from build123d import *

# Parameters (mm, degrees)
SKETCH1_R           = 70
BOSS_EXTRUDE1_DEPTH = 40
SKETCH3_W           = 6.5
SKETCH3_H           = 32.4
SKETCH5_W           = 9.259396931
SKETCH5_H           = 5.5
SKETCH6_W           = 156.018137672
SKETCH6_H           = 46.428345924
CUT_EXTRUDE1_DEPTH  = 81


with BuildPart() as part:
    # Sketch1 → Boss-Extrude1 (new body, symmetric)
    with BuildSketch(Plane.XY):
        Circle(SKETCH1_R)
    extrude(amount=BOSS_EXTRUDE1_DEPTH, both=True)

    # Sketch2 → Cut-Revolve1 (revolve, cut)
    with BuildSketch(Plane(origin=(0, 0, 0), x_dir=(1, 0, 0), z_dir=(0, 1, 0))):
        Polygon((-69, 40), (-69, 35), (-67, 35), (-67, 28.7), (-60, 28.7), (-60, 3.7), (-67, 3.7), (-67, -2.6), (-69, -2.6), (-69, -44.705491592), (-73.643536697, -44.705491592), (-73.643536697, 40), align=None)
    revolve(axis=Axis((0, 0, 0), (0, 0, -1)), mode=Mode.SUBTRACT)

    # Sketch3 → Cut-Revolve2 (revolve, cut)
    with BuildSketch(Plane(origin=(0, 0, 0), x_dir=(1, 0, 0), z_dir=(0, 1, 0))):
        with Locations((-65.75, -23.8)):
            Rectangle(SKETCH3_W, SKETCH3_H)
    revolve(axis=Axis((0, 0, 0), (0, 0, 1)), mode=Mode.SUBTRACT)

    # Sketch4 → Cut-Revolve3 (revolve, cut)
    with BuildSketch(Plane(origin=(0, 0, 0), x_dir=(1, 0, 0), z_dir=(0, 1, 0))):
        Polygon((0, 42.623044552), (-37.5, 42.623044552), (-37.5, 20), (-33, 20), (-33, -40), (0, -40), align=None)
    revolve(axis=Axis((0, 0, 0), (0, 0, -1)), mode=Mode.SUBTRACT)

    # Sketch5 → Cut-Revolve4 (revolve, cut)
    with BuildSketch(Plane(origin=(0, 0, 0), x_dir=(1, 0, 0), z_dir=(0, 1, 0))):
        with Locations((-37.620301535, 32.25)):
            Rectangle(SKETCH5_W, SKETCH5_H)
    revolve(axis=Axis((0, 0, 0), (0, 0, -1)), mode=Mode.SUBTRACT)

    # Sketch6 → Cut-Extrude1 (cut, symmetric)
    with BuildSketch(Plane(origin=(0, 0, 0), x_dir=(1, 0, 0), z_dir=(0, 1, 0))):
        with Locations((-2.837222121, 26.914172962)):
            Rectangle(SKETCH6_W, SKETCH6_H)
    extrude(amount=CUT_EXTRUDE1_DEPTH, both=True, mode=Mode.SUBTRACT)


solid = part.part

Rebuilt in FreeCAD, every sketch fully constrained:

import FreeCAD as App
import Part
import Sketcher

V = App.Vector

doc = App.newDocument("Part")
body = doc.addObject("PartDesign::Body", "Body")

# Sketch on XY plane
sketch1 = body.newObject("Sketcher::SketchObject", "Sketch")
sketch1.AttachmentSupport = (doc.getObject("XY_Plane"), [""])
sketch1.MapMode = "FlatFace"
sketch1.addGeometry(Part.Circle(V(0, 0, 0), V(0, 0, 1), 70), False)
sketch1.addConstraint(Sketcher.Constraint("Coincident", 0, 3, -1, 1))
sketch1.addConstraint(Sketcher.Constraint("Diameter", 0, 140.0))
pad1 = body.newObject("PartDesign::Pad", "Pad")
pad1.Profile = sketch1
pad1.Length = 80
pad1.Midplane = True

# Sketch on XZ plane
sketch2 = body.newObject("Sketcher::SketchObject", "Sketch001")
sketch2.AttachmentSupport = (doc.getObject("XZ_Plane"), [""])
sketch2.MapMode = "FlatFace"
sketch2.addGeometry(Part.LineSegment(V(-69, -35, 0), V(-69, -40, 0)), False)
sketch2.addGeometry(Part.LineSegment(V(-69, -40, 0), V(-73.643537, -40, 0)), False)
sketch2.addGeometry(Part.LineSegment(V(-73.643537, -40, 0), V(-73.643537, 44.705492, 0)), False)
sketch2.addGeometry(Part.LineSegment(V(-73.643537, 44.705492, 0), V(-69, 44.705492, 0)), False)
sketch2.addGeometry(Part.LineSegment(V(-69, 44.705492, 0), V(-69, 2.6, 0)), False)
sketch2.addGeometry(Part.LineSegment(V(-69, 2.6, 0), V(-67, 2.6, 0)), False)
sketch2.addGeometry(Part.LineSegment(V(-67, 2.6, 0), V(-67, -3.7, 0)), False)
sketch2.addGeometry(Part.LineSegment(V(-67, -3.7, 0), V(-60, -3.7, 0)), False)
sketch2.addGeometry(Part.LineSegment(V(-60, -3.7, 0), V(-60, -28.7, 0)), False)
sketch2.addGeometry(Part.LineSegment(V(-60, -28.7, 0), V(-67, -28.7, 0)), False)
sketch2.addGeometry(Part.LineSegment(V(-67, -28.7, 0), V(-67, -35, 0)), False)
sketch2.addGeometry(Part.LineSegment(V(-67, -35, 0), V(-69, -35, 0)), False)
sketch2.addConstraint(Sketcher.Constraint("Coincident", 0, 2, 1, 1))
sketch2.addConstraint(Sketcher.Constraint("Coincident", 1, 2, 2, 1))
sketch2.addConstraint(Sketcher.Constraint("Coincident", 2, 2, 3, 1))
sketch2.addConstraint(Sketcher.Constraint("Coincident", 3, 2, 4, 1))
sketch2.addConstraint(Sketcher.Constraint("Coincident", 4, 2, 5, 1))
sketch2.addConstraint(Sketcher.Constraint("Coincident", 5, 2, 6, 1))
sketch2.addConstraint(Sketcher.Constraint("Coincident", 6, 2, 7, 1))
sketch2.addConstraint(Sketcher.Constraint("Coincident", 7, 2, 8, 1))
sketch2.addConstraint(Sketcher.Constraint("Coincident", 8, 2, 9, 1))
sketch2.addConstraint(Sketcher.Constraint("Coincident", 9, 2, 10, 1))
sketch2.addConstraint(Sketcher.Constraint("Coincident", 10, 2, 11, 1))
sketch2.addConstraint(Sketcher.Constraint("Coincident", 11, 2, 0, 1))
sketch2.addConstraint(Sketcher.Constraint("Vertical", 0))
sketch2.addConstraint(Sketcher.Constraint("Horizontal", 1))
sketch2.addConstraint(Sketcher.Constraint("Vertical", 2))
sketch2.addConstraint(Sketcher.Constraint("Horizontal", 3))
sketch2.addConstraint(Sketcher.Constraint("Vertical", 4))
sketch2.addConstraint(Sketcher.Constraint("Horizontal", 5))
sketch2.addConstraint(Sketcher.Constraint("Vertical", 6))
sketch2.addConstraint(Sketcher.Constraint("Horizontal", 7))
sketch2.addConstraint(Sketcher.Constraint("Vertical", 8))
sketch2.addConstraint(Sketcher.Constraint("Horizontal", 9))
sketch2.addConstraint(Sketcher.Constraint("Vertical", 10))
sketch2.addConstraint(Sketcher.Constraint("Horizontal", 11))
sketch2.addConstraint(Sketcher.Constraint("Vertical", 0, 2, 3, 2))
sketch2.addConstraint(Sketcher.Constraint("Vertical", 6, 2, 9, 2))
sketch2.addConstraint(Sketcher.Constraint("Equal", 6, 10))
sketch2.addConstraint(Sketcher.Constraint("DistanceX", 5, 1, 5, 2, 2.0))
sketch2.addConstraint(Sketcher.Constraint("DistanceX", 7, 1, 7, 2, 7.0))
sketch2.addConstraint(Sketcher.Constraint("DistanceY", 0, 2, 0, 1, 5.0))
sketch2.addConstraint(Sketcher.Constraint("DistanceY", 8, 2, 8, 1, 25.0))
sketch2.addConstraint(Sketcher.Constraint("DistanceY", 6, 2, 6, 1, 6.3))
sketch2.addConstraint(Sketcher.Constraint("DistanceX", 0, 2, -1, 1, 69.0))
sketch2.addConstraint(Sketcher.Constraint("DistanceY", 0, 2, -1, 1, 40.0))
sketch2.addConstraint(Sketcher.Constraint("DistanceY", 2, 1, 2, 2, 84.705492))
sketch2.addConstraint(Sketcher.Constraint("DistanceX", 1, 2, 1, 1, 4.643537))
groove = body.newObject("PartDesign::Groove", "Groove")
groove.Profile = sketch2
groove.ReferenceAxis = (sketch2, ["V_Axis"])
groove.Angle = 360

# Sketch on XZ plane
sketch3 = body.newObject("Sketcher::SketchObject", "Sketch002")
sketch3.AttachmentSupport = (doc.getObject("XZ_Plane"), [""])
sketch3.MapMode = "FlatFace"
sketch3.addGeometry(Part.LineSegment(V(-69, 7.6, 0), V(-69, 40, 0)), False)
sketch3.addGeometry(Part.LineSegment(V(-69, 40, 0), V(-62.5, 40, 0)), False)
sketch3.addGeometry(Part.LineSegment(V(-62.5, 40, 0), V(-62.5, 7.6, 0)), False)
sketch3.addGeometry(Part.LineSegment(V(-62.5, 7.6, 0), V(-69, 7.6, 0)), False)
sketch3.addConstraint(Sketcher.Constraint("Coincident", 0, 2, 1, 1))
sketch3.addConstraint(Sketcher.Constraint("Coincident", 1, 2, 2, 1))
sketch3.addConstraint(Sketcher.Constraint("Coincident", 2, 2, 3, 1))
sketch3.addConstraint(Sketcher.Constraint("Coincident", 3, 2, 0, 1))
sketch3.addConstraint(Sketcher.Constraint("Vertical", 0))
sketch3.addConstraint(Sketcher.Constraint("Horizontal", 1))
sketch3.addConstraint(Sketcher.Constraint("Vertical", 2))
sketch3.addConstraint(Sketcher.Constraint("Horizontal", 3))
sketch3.addConstraint(Sketcher.Constraint("DistanceX", 1, 1, 1, 2, 6.5))
sketch3.addConstraint(Sketcher.Constraint("DistanceY", 0, 1, 0, 2, 32.4))
sketch3.addConstraint(Sketcher.Constraint("DistanceX", 0, 2, -1, 1, 69.0))
sketch3.addConstraint(Sketcher.Constraint("DistanceY", -1, 1, 0, 2, 40.0))
groove2 = body.newObject("PartDesign::Groove", "Groove001")
groove2.Profile = sketch3
groove2.ReferenceAxis = (sketch3, ["V_Axis"])
groove2.Angle = 360

# Sketch on XZ plane
sketch4 = body.newObject("Sketcher::SketchObject", "Sketch003")
sketch4.AttachmentSupport = (doc.getObject("XZ_Plane"), [""])
sketch4.MapMode = "FlatFace"
sketch4.addGeometry(Part.LineSegment(V(0, -42.623045, 0), V(-37.5, -42.623045, 0)), False)
sketch4.addGeometry(Part.LineSegment(V(-37.5, -42.623045, 0), V(-37.5, -20, 0)), False)
sketch4.addGeometry(Part.LineSegment(V(-37.5, -20, 0), V(-33, -20, 0)), False)
sketch4.addGeometry(Part.LineSegment(V(-33, -20, 0), V(-33, 40, 0)), False)
sketch4.addGeometry(Part.LineSegment(V(-33, 40, 0), V(0, 40, 0)), False)
sketch4.addGeometry(Part.LineSegment(V(0, 40, 0), V(0, -42.623045, 0)), False)
sketch4.addConstraint(Sketcher.Constraint("Coincident", 0, 2, 1, 1))
sketch4.addConstraint(Sketcher.Constraint("Coincident", 1, 2, 2, 1))
sketch4.addConstraint(Sketcher.Constraint("Coincident", 2, 2, 3, 1))
sketch4.addConstraint(Sketcher.Constraint("Coincident", 3, 2, 4, 1))
sketch4.addConstraint(Sketcher.Constraint("Coincident", 4, 2, 5, 1))
sketch4.addConstraint(Sketcher.Constraint("Coincident", 5, 2, 0, 1))
sketch4.addConstraint(Sketcher.Constraint("Horizontal", 0))
sketch4.addConstraint(Sketcher.Constraint("Vertical", 1))
sketch4.addConstraint(Sketcher.Constraint("Horizontal", 2))
sketch4.addConstraint(Sketcher.Constraint("Vertical", 3))
sketch4.addConstraint(Sketcher.Constraint("Horizontal", 4))
sketch4.addConstraint(Sketcher.Constraint("Vertical", 5))
sketch4.addConstraint(Sketcher.Constraint("PointOnObject", 4, 2, -2))
sketch4.addConstraint(Sketcher.Constraint("DistanceX", 4, 1, 4, 2, 33.0))
sketch4.addConstraint(Sketcher.Constraint("DistanceY", 3, 1, 3, 2, 60.0))
sketch4.addConstraint(Sketcher.Constraint("DistanceX", 0, 2, 0, 1, 37.5))
sketch4.addConstraint(Sketcher.Constraint("DistanceY", 1, 2, -1, 1, 20.0))
sketch4.addConstraint(Sketcher.Constraint("DistanceY", 1, 1, 1, 2, 22.623045))
groove3 = body.newObject("PartDesign::Groove", "Groove002")
groove3.Profile = sketch4
groove3.ReferenceAxis = (sketch4, ["V_Axis"])
groove3.Angle = 360

# Sketch on XZ plane
sketch5 = body.newObject("Sketcher::SketchObject", "Sketch004")
sketch5.AttachmentSupport = (doc.getObject("XZ_Plane"), [""])
sketch5.MapMode = "FlatFace"
sketch5.addGeometry(Part.LineSegment(V(-42.25, -35, 0), V(-42.25, -29.5, 0)), False)
sketch5.addGeometry(Part.LineSegment(V(-42.25, -29.5, 0), V(-32.990603, -29.5, 0)), False)
sketch5.addGeometry(Part.LineSegment(V(-32.990603, -29.5, 0), V(-32.990603, -35, 0)), False)
sketch5.addGeometry(Part.LineSegment(V(-32.990603, -35, 0), V(-42.25, -35, 0)), False)
sketch5.addConstraint(Sketcher.Constraint("Coincident", 0, 2, 1, 1))
sketch5.addConstraint(Sketcher.Constraint("Coincident", 1, 2, 2, 1))
sketch5.addConstraint(Sketcher.Constraint("Coincident", 2, 2, 3, 1))
sketch5.addConstraint(Sketcher.Constraint("Coincident", 3, 2, 0, 1))
sketch5.addConstraint(Sketcher.Constraint("Vertical", 0))
sketch5.addConstraint(Sketcher.Constraint("Horizontal", 1))
sketch5.addConstraint(Sketcher.Constraint("Vertical", 2))
sketch5.addConstraint(Sketcher.Constraint("Horizontal", 3))
sketch5.addConstraint(Sketcher.Constraint("DistanceY", 0, 1, 0, 2, 5.5))
sketch5.addConstraint(Sketcher.Constraint("DistanceY", 2, 2, -1, 1, 35.0))
sketch5.addConstraint(Sketcher.Constraint("DistanceX", 0, 2, -1, 1, 42.25))
sketch5.addConstraint(Sketcher.Constraint("DistanceX", 1, 1, 1, 2, 9.259397))
groove4 = body.newObject("PartDesign::Groove", "Groove003")
groove4.Profile = sketch5
groove4.ReferenceAxis = (sketch5, ["V_Axis"])
groove4.Angle = 360

# Sketch on XZ plane
sketch6 = body.newObject("Sketcher::SketchObject", "Sketch005")
sketch6.AttachmentSupport = (doc.getObject("XZ_Plane"), [""])
sketch6.MapMode = "FlatFace"
sketch6.addGeometry(Part.LineSegment(V(-80.846291, -50.128346, 0), V(-80.846291, -3.7, 0)), False)
sketch6.addGeometry(Part.LineSegment(V(-80.846291, -3.7, 0), V(75.171847, -3.7, 0)), False)
sketch6.addGeometry(Part.LineSegment(V(75.171847, -3.7, 0), V(75.171847, -50.128346, 0)), False)
sketch6.addGeometry(Part.LineSegment(V(75.171847, -50.128346, 0), V(-80.846291, -50.128346, 0)), False)
sketch6.addConstraint(Sketcher.Constraint("Coincident", 0, 2, 1, 1))
sketch6.addConstraint(Sketcher.Constraint("Coincident", 1, 2, 2, 1))
sketch6.addConstraint(Sketcher.Constraint("Coincident", 2, 2, 3, 1))
sketch6.addConstraint(Sketcher.Constraint("Coincident", 3, 2, 0, 1))
sketch6.addConstraint(Sketcher.Constraint("Vertical", 0))
sketch6.addConstraint(Sketcher.Constraint("Horizontal", 1))
sketch6.addConstraint(Sketcher.Constraint("Vertical", 2))
sketch6.addConstraint(Sketcher.Constraint("Horizontal", 3))
sketch6.addConstraint(Sketcher.Constraint("DistanceY", 0, 2, -1, 1, 3.7))
sketch6.addConstraint(Sketcher.Constraint("DistanceX", 1, 1, 1, 2, 156.018138))
sketch6.addConstraint(Sketcher.Constraint("DistanceY", 0, 1, 0, 2, 46.428346))
sketch6.addConstraint(Sketcher.Constraint("DistanceX", 0, 2, -1, 1, 80.846291))
pocket1 = body.newObject("PartDesign::Pocket", "Pocket")
pocket1.Profile = sketch6
pocket1.Length = 162
pocket1.Midplane = True

doc.recompute()
